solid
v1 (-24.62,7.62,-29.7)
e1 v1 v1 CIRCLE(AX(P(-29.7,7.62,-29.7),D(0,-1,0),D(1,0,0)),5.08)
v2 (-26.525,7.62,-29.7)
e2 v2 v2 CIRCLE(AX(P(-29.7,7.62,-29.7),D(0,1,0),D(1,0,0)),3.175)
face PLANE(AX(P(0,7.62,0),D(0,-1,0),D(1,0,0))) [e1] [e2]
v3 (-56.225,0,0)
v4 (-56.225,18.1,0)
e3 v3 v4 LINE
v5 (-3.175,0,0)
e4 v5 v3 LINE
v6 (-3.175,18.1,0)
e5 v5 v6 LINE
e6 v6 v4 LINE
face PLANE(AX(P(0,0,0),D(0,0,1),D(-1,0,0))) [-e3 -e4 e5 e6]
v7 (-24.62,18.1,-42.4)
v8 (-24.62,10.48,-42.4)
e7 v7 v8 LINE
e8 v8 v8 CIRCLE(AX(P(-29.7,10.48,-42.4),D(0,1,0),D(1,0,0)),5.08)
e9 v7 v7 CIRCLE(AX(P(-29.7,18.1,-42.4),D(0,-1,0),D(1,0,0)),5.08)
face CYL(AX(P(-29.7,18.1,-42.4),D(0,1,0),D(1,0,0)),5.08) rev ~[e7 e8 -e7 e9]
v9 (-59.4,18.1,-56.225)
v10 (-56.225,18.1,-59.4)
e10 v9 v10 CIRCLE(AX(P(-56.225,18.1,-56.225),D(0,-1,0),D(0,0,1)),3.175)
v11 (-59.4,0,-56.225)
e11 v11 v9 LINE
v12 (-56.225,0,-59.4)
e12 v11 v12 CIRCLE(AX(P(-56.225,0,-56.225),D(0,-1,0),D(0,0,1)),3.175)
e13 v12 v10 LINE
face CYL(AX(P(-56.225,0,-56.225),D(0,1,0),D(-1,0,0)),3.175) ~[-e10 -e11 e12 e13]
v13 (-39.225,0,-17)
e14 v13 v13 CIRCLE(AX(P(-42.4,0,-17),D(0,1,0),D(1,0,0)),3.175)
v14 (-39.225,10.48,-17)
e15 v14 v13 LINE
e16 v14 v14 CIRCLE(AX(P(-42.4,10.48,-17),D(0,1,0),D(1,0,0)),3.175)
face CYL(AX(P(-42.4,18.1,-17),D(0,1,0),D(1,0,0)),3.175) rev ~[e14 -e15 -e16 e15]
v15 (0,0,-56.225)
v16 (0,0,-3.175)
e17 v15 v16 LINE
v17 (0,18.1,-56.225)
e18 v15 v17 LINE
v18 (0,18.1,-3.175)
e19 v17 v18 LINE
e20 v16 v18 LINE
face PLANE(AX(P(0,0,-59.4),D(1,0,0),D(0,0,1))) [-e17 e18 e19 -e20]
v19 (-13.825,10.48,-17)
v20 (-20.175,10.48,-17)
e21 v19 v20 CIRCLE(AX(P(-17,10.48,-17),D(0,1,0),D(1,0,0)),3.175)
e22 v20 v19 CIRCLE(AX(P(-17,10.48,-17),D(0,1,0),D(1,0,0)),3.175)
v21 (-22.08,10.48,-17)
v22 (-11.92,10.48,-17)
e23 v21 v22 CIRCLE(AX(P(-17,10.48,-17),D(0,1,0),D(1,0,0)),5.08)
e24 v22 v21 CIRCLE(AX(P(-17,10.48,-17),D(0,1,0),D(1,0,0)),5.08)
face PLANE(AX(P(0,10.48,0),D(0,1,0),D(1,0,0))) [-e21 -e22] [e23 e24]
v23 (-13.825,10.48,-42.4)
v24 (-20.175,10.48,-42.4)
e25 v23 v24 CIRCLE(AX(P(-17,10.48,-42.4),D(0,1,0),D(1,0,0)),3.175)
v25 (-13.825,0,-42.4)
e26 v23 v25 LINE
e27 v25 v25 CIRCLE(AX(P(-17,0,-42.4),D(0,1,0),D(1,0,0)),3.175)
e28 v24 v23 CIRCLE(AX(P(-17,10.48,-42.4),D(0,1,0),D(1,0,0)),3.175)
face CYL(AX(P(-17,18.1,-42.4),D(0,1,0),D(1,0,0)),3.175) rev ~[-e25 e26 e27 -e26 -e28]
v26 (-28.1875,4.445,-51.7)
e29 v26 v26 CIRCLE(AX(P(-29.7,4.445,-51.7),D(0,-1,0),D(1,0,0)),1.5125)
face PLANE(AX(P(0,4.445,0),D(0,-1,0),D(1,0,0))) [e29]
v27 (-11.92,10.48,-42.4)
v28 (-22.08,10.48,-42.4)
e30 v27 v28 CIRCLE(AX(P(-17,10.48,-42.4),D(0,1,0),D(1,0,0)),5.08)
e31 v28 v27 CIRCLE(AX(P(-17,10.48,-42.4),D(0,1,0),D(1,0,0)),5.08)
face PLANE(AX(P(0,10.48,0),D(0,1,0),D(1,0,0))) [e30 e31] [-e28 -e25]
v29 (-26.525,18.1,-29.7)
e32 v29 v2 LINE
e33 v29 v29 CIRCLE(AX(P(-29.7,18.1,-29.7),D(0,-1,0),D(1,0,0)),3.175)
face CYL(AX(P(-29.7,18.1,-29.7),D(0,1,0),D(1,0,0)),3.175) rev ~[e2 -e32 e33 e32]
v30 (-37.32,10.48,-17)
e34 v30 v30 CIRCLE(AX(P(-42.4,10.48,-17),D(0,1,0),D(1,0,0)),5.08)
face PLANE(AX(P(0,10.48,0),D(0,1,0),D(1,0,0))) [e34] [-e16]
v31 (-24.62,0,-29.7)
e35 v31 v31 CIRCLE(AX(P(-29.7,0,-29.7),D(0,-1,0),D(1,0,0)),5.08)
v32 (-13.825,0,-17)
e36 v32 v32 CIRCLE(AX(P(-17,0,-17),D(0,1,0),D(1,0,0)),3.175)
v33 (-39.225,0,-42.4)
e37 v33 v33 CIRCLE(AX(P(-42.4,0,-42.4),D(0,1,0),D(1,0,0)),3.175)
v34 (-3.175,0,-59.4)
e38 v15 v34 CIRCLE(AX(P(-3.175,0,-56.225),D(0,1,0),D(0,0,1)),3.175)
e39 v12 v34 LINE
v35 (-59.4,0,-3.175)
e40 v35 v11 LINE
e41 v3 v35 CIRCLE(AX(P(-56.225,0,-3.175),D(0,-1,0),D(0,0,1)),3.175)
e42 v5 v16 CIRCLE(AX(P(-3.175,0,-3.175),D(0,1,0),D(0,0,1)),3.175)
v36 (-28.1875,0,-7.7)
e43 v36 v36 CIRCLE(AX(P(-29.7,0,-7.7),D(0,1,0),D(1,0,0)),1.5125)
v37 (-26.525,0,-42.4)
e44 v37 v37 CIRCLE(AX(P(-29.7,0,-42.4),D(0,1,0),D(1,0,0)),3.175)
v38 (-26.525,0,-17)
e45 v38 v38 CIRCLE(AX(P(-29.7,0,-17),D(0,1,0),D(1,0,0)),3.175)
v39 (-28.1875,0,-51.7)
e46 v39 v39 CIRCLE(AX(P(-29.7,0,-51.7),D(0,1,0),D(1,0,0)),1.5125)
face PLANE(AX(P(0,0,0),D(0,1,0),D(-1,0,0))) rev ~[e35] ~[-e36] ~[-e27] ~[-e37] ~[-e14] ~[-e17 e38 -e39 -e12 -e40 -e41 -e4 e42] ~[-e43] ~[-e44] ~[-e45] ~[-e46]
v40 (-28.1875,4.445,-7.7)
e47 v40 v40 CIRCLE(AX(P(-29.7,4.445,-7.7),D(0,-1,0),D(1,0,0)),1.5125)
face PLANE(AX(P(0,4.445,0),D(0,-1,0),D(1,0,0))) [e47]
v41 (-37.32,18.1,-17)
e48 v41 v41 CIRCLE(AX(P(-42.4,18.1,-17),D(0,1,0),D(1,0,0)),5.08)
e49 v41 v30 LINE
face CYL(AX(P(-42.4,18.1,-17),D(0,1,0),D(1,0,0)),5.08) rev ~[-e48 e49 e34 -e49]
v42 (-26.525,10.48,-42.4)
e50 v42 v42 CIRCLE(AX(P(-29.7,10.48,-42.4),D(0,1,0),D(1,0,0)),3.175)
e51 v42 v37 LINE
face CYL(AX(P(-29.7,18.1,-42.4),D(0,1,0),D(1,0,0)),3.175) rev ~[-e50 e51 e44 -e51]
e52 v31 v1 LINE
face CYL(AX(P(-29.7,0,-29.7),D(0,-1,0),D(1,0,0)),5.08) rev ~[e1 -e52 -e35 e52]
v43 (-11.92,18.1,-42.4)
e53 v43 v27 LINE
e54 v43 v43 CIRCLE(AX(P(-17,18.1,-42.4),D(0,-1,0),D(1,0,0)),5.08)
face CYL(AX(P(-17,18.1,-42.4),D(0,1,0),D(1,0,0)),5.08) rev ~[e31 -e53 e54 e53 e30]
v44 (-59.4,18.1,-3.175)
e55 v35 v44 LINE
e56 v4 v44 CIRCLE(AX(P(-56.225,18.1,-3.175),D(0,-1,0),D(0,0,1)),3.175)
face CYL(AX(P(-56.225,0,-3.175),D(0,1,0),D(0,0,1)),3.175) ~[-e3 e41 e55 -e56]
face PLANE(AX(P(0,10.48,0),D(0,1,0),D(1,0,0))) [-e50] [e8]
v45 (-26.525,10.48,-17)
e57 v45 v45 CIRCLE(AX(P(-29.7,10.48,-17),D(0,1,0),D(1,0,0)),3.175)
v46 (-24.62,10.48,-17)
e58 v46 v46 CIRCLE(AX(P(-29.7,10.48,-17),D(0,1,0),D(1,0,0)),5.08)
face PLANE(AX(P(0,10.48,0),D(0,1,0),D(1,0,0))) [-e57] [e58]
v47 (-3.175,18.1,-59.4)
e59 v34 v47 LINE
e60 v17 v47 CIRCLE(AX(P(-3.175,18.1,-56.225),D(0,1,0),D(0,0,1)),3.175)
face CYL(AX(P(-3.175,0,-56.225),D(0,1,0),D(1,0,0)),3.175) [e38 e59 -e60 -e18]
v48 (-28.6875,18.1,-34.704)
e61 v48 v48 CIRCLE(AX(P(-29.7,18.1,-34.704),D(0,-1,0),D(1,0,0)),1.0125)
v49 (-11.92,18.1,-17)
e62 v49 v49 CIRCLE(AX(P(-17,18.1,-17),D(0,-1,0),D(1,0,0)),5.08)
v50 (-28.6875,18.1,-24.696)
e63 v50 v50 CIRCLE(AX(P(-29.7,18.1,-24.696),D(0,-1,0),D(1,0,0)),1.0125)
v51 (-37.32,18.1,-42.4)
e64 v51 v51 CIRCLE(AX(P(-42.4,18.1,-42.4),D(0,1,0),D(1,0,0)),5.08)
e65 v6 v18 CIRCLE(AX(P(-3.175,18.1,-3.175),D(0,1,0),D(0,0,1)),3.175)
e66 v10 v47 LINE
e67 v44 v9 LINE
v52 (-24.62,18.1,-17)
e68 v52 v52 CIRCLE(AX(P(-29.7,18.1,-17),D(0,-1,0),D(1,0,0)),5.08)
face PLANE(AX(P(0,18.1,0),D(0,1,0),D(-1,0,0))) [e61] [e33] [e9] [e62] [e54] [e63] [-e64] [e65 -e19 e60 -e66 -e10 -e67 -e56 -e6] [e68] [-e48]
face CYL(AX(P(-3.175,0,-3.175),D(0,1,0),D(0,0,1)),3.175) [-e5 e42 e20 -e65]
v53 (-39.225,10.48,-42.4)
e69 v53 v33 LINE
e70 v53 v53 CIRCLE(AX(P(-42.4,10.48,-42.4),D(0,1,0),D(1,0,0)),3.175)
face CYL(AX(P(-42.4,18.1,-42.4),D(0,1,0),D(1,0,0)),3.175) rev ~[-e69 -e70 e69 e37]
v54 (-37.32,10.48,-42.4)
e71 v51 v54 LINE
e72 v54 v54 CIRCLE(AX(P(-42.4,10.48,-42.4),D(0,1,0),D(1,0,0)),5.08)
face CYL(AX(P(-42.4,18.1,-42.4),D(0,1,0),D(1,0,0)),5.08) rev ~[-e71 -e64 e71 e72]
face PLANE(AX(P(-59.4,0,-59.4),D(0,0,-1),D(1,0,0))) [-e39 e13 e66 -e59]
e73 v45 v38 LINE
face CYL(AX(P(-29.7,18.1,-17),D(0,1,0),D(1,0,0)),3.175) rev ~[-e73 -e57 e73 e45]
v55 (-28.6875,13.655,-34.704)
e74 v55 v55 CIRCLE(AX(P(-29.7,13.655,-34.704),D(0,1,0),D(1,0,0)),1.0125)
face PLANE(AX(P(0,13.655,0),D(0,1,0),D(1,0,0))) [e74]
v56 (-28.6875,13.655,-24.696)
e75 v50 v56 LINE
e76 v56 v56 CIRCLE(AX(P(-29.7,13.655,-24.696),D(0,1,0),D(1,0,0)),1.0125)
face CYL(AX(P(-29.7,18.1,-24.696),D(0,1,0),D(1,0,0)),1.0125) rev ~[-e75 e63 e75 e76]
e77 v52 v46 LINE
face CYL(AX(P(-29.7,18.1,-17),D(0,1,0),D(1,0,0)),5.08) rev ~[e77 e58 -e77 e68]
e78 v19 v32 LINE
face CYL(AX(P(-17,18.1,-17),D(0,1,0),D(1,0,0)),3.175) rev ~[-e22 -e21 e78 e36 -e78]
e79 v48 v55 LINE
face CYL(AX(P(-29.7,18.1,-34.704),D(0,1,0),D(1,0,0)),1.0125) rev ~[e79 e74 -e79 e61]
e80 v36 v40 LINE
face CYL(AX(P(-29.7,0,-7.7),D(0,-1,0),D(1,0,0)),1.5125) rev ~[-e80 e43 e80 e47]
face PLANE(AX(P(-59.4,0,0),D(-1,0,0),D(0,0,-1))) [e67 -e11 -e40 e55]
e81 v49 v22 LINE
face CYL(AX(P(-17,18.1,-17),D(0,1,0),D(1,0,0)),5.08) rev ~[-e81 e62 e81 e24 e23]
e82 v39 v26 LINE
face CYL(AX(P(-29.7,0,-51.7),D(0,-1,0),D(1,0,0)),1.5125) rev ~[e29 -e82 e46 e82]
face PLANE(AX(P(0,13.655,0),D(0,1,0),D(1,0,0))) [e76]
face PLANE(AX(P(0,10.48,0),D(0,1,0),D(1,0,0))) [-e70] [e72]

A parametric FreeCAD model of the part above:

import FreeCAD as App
import Part
import Sketcher
from FreeCAD import Vector
Q = App.Units.Quantity


def edges_at(feature, points):
    """Names of the edges that pass closest to the given points."""
    edges = feature.Shape.Edges
    near = lambda p: min(range(len(edges)), key=lambda i: edges[i].distToShape(Part.Vertex(*p))[0])
    return sorted({f"Edge{near(p) + 1}" for p in points})

doc = App.newDocument("Part")
params = doc.addObject("Spreadsheet::Sheet", "Params")
for row, (alias, value) in enumerate([
    ("pad1_length", "0.7125984 in"),
    ("sketch2_diameter", "0.25 in"),
    ("pocket1_length", "1.5 in"),
    ("sketch3_diameter", "0.4 in"),
    ("sketch3_diameter2", "0.25 in"),
    ("pocket2_length", "0.3 in"),
    ("pocket3_length", "0.175 in"),
    ("pocket4_length", "0.175 in"),
    ("sketch6_diameter", "0.4 in"),
    ("pocket5_length", "0.3 in"),
    ("fillet_radius", "0.125 in"),
], start=1):
    params.set(f"A{row}", alias)
    params.set(f"B{row}", "=" + value)
    params.setAlias(f"B{row}", alias)

body = doc.addObject("PartDesign::Body", "Body")

# Sketch on XZ plane
sketch1 = doc.addObject("Sketcher::SketchObject", "Sketch")
body.addObject(sketch1)
sketch1.AttachmentSupport = (doc.XZ_Plane, [""])
sketch1.MapMode = "FlatFace"
sketch1.addGeometry([
    Part.LineSegment(Vector(-59.4, 0, 0), Vector(0, 0, 0)),
    Part.LineSegment(Vector(0, 0, 0), Vector(0, -59.4, 0)),
    Part.LineSegment(Vector(0, -59.4, 0), Vector(-59.4, -59.4, 0)),
    Part.LineSegment(Vector(-59.4, -59.4, 0), Vector(-59.4, 0, 0)),
], False)
sketch1.addConstraint([
    Sketcher.Constraint("Coincident", 0, 2, 1, 1),
    Sketcher.Constraint("Coincident", 1, 2, 2, 1),
    Sketcher.Constraint("Coincident", 2, 2, 3, 1),
    Sketcher.Constraint("Coincident", 3, 2, 0, 1),
    Sketcher.Constraint("Horizontal", 0),
    Sketcher.Constraint("Vertical", 1),
    Sketcher.Constraint("Horizontal", 2),
    Sketcher.Constraint("Vertical", 3),
    Sketcher.Constraint("Coincident", 0, 2, -1, 1),
    Sketcher.Constraint("Equal", 2, 1),
    Sketcher.Constraint("DistanceX", 0, 1, 0, 2, Q("59.4 mm")),
])
pad1 = doc.addObject("PartDesign::Pad", "Pad")
body.addObject(pad1)
pad1.Profile = sketch1
pad1.setExpression("Length", "Params.pad1_length")
pad1.Reversed = True

# Sketch on XZ plane
sketch2 = doc.addObject("Sketcher::SketchObject", "Sketch001")
body.addObject(sketch2)
sketch2.AttachmentSupport = (doc.XZ_Plane, [""])
sketch2.MapMode = "FlatFace"
sketch2.AttachmentOffset = App.Placement(Vector(0, 0, -0.7125984 * 25.4), App.Rotation())
sketch2.addGeometry([
    Part.Circle(Vector(-29.7, -29.7, 0), Vector(0, 0, 1), 3.175),  # 0
    Part.Circle(Vector(-17, -17, 0), Vector(0, 0, 1), 3.175),  # 1
    Part.Circle(Vector(-42.4, -17, 0), Vector(0, 0, 1), 3.175),  # 2
    Part.Circle(Vector(-42.4, -42.4, 0), Vector(0, 0, 1), 3.175),  # 3
    Part.Circle(Vector(-17, -42.4, 0), Vector(0, 0, 1), 3.175),  # 4
    Part.Circle(Vector(-29.7, -42.4, 0), Vector(0, 0, 1), 3.175),  # 5
    Part.Circle(Vector(-29.7, -17, 0), Vector(0, 0, 1), 3.175),  # 6
], False)
sketch2.addConstraint([
    Sketcher.Constraint("Equal", 0, 1),
    Sketcher.Constraint("Equal", 1, 2),
    Sketcher.Constraint("Equal", 2, 3),
    Sketcher.Constraint("Equal", 3, 4),
    Sketcher.Constraint("Equal", 4, 5),
    Sketcher.Constraint("Equal", 5, 6),
    Sketcher.Constraint("Horizontal", 1, 3, 2, 3),
    Sketcher.Constraint("Horizontal", 3, 3, 4, 3),
    Sketcher.Constraint("Horizontal", 4, 3, 5, 3),
    Sketcher.Constraint("Horizontal", 2, 3, 6, 3),
    Sketcher.Constraint("Vertical", 2, 3, 3, 3),
    Sketcher.Constraint("Vertical", 1, 3, 4, 3),
    Sketcher.Constraint("Vertical", 0, 3, 5, 3),
    Sketcher.Constraint("Vertical", 5, 3, 6, 3),
    Sketcher.Constraint("Diameter", 0, Q("0.25 in")),
    Sketcher.Constraint("DistanceX", 0, 3, 1, 3, Q("0.5 in")),
    Sketcher.Constraint("DistanceY", 0, 3, 1, 3, Q("0.5 in")),
    Sketcher.Constraint("DistanceX", 2, 3, 0, 3, Q("0.5 in")),
    Sketcher.Constraint("DistanceY", 3, 3, 0, 3, Q("0.5 in")),
    Sketcher.Constraint("DistanceX", 0, 3, -1, 1, Q("1.1693 in")),
    Sketcher.Constraint("DistanceY", 0, 3, -1, 1, Q("1.1693 in")),
])
sketch2.setExpression("Constraints[14]", "Params.sketch2_diameter")
pocket1 = doc.addObject("PartDesign::Pocket", "Pocket")
body.addObject(pocket1)
pocket1.Profile = sketch2
pocket1.setExpression("Length", "Params.pocket1_length")
pocket1.Reversed = True

# Sketch on XZ plane
sketch3 = doc.addObject("Sketcher::SketchObject", "Sketch002")
body.addObject(sketch3)
sketch3.AttachmentSupport = (doc.XZ_Plane, [""])
sketch3.MapMode = "FlatFace"
sketch3.AttachmentOffset = App.Placement(Vector(0, 0, -0.7125984 * 25.4), App.Rotation())
sketch3.addGeometry([
    Part.Circle(Vector(-17, -17, 0), Vector(0, 0, 1), 5.08),  # 0
    Part.Circle(Vector(-42.4, -17, 0), Vector(0, 0, 1), 5.08),  # 1
    Part.Circle(Vector(-29.7, -17, 0), Vector(0, 0, 1), 5.08),  # 2
    Part.Circle(Vector(-42.4, -42.4, 0), Vector(0, 0, 1), 5.08),  # 3
    Part.Circle(Vector(-42.4, -42.4, 0), Vector(0, 0, 1), 3.175),  # 4
    Part.Circle(Vector(-17, -42.4, 0), Vector(0, 0, 1), 5.08),  # 5
    Part.Circle(Vector(-29.7, -42.4, 0), Vector(0, 0, 1), 5.08),  # 6
], False)
sketch3.addConstraint([
    Sketcher.Constraint("Coincident", 4, 3, 3, 3),
    Sketcher.Constraint("Equal", 0, 1),
    Sketcher.Constraint("Equal", 1, 2),
    Sketcher.Constraint("Equal", 2, 3),
    Sketcher.Constraint("Equal", 3, 5),
    Sketcher.Constraint("Equal", 5, 6),
    Sketcher.Constraint("Horizontal", 0, 3, 1, 3),
    Sketcher.Constraint("Horizontal", 1, 3, 2, 3),
    Sketcher.Constraint("Horizontal", 4, 3, 5, 3),
    Sketcher.Constraint("Horizontal", 5, 3, 6, 3),
    Sketcher.Constraint("Vertical", 1, 3, 3, 3),
    Sketcher.Constraint("Vertical", 0, 3, 5, 3),
    Sketcher.Constraint("Vertical", 2, 3, 6, 3),
    Sketcher.Constraint("Diameter", 0, Q("0.4 in")),
    Sketcher.Constraint("Diameter", 4, Q("0.25 in")),
    Sketcher.Constraint("DistanceX", 2, 3, 0, 3, Q("0.5 in")),
    Sketcher.Constraint("DistanceX", 1, 3, 2, 3, Q("0.5 in")),
    Sketcher.Constraint("DistanceY", 3, 3, 1, 3, Q("1 in")),
    Sketcher.Constraint("DistanceX", 0, 3, -1, 1, Q("0.6693 in")),
    Sketcher.Constraint("DistanceY", 0, 3, -1, 1, Q("0.6693 in")),
])
sketch3.setExpression("Constraints[13]", "Params.sketch3_diameter")
sketch3.setExpression("Constraints[14]", "Params.sketch3_diameter2")
pocket2 = doc.addObject("PartDesign::Pocket", "Pocket001")
body.addObject(pocket2)
pocket2.Profile = sketch3
pocket2.setExpression("Length", "Params.pocket2_length")
pocket2.Reversed = True

# Sketch on XZ plane
sketch4 = doc.addObject("Sketcher::SketchObject", "Sketch003")
body.addObject(sketch4)
sketch4.AttachmentSupport = (doc.XZ_Plane, [""])
sketch4.MapMode = "FlatFace"
sketch4.AttachmentOffset = App.Placement(Vector(0, 0, -0.7125984 * 25.4), App.Rotation())
sketch4.addGeometry([
    Part.Circle(Vector(-29.7, -24.696, 0), Vector(0, 0, 1), 1.0125),
    Part.Circle(Vector(-29.7, -34.704, 0), Vector(0, 0, 1), 1.0125),
], False)
sketch4.addConstraint([
    Sketcher.Constraint("Equal", 0, 1),
    Sketcher.Constraint("Vertical", 0, 3, 1, 3),
    Sketcher.Constraint("Diameter", 0, Q("2.025 mm")),
    Sketcher.Constraint("DistanceX", 0, 3, -1, 1, Q("1.1693 in")),
    Sketcher.Constraint("DistanceY", 1, 3, -1, 1, Q("1.3663 in")),
    Sketcher.Constraint("DistanceY", 0, 3, -1, 1, Q("24.696 mm")),
])
pocket3 = doc.addObject("PartDesign::Pocket", "Pocket002")
body.addObject(pocket3)
pocket3.Profile = sketch4
pocket3.setExpression("Length", "Params.pocket3_length")
pocket3.Reversed = True

# Sketch on XZ plane
sketch5 = doc.addObject("Sketcher::SketchObject", "Sketch004")
body.addObject(sketch5)
sketch5.AttachmentSupport = (doc.XZ_Plane, [""])
sketch5.MapMode = "FlatFace"
sketch5.addGeometry([
    Part.Circle(Vector(-29.7, -7.7, 0), Vector(0, 0, 1), 1.5125),
    Part.Circle(Vector(-29.7, -51.7, 0), Vector(0, 0, 1), 1.5125),
], False)
sketch5.addConstraint([
    Sketcher.Constraint("Equal", 0, 1),
    Sketcher.Constraint("Vertical", 0, 3, 1, 3),
    Sketcher.Constraint("Diameter", 0, Q("0.1191 in")),
    Sketcher.Constraint("DistanceX", 0, 3, -1, 1, Q("1.1693 in")),
    Sketcher.Constraint("DistanceY", 0, 3, -1, 1, Q("7.7 mm")),
    Sketcher.Constraint("DistanceY", 1, 3, -1, 1, Q("51.7 mm")),
])
pocket4 = doc.addObject("PartDesign::Pocket", "Pocket003")
body.addObject(pocket4)
pocket4.Profile = sketch5
pocket4.setExpression("Length", "Params.pocket4_length")

# Sketch on XZ plane
sketch6 = doc.addObject("Sketcher::SketchObject", "Sketch005")
body.addObject(sketch6)
sketch6.AttachmentSupport = (doc.XZ_Plane, [""])
sketch6.MapMode = "FlatFace"
sketch6.addGeometry(Part.Circle(Vector(-29.7, -29.7, 0), Vector(0, 0, 1), 5.08), False)
sketch6.addConstraint([
    Sketcher.Constraint("Diameter", 0, Q("0.4 in")),
    Sketcher.Constraint("DistanceX", 0, 3, -1, 1, Q("1.1693 in")),
    Sketcher.Constraint("DistanceY", 0, 3, -1, 1, Q("1.1693 in")),
])
sketch6.setExpression("Constraints[0]", "Params.sketch6_diameter")
pocket5 = doc.addObject("PartDesign::Pocket", "Pocket004")
body.addObject(pocket5)
pocket5.Profile = sketch6
pocket5.setExpression("Length", "Params.pocket5_length")
doc.recompute()

fillet = doc.addObject("PartDesign::Fillet", "Fillet")
body.addObject(fillet)
fillet.Base = (pocket5, edges_at(pocket5, [
    (0, 9.05, -59.4),
    (0, 9.05, 0),
    (-59.4, 9.05, 0),
    (-59.4, 9.05, -59.4),
]))
fillet.setExpression("Radius", "Params.fillet_radius")

doc.recompute()
